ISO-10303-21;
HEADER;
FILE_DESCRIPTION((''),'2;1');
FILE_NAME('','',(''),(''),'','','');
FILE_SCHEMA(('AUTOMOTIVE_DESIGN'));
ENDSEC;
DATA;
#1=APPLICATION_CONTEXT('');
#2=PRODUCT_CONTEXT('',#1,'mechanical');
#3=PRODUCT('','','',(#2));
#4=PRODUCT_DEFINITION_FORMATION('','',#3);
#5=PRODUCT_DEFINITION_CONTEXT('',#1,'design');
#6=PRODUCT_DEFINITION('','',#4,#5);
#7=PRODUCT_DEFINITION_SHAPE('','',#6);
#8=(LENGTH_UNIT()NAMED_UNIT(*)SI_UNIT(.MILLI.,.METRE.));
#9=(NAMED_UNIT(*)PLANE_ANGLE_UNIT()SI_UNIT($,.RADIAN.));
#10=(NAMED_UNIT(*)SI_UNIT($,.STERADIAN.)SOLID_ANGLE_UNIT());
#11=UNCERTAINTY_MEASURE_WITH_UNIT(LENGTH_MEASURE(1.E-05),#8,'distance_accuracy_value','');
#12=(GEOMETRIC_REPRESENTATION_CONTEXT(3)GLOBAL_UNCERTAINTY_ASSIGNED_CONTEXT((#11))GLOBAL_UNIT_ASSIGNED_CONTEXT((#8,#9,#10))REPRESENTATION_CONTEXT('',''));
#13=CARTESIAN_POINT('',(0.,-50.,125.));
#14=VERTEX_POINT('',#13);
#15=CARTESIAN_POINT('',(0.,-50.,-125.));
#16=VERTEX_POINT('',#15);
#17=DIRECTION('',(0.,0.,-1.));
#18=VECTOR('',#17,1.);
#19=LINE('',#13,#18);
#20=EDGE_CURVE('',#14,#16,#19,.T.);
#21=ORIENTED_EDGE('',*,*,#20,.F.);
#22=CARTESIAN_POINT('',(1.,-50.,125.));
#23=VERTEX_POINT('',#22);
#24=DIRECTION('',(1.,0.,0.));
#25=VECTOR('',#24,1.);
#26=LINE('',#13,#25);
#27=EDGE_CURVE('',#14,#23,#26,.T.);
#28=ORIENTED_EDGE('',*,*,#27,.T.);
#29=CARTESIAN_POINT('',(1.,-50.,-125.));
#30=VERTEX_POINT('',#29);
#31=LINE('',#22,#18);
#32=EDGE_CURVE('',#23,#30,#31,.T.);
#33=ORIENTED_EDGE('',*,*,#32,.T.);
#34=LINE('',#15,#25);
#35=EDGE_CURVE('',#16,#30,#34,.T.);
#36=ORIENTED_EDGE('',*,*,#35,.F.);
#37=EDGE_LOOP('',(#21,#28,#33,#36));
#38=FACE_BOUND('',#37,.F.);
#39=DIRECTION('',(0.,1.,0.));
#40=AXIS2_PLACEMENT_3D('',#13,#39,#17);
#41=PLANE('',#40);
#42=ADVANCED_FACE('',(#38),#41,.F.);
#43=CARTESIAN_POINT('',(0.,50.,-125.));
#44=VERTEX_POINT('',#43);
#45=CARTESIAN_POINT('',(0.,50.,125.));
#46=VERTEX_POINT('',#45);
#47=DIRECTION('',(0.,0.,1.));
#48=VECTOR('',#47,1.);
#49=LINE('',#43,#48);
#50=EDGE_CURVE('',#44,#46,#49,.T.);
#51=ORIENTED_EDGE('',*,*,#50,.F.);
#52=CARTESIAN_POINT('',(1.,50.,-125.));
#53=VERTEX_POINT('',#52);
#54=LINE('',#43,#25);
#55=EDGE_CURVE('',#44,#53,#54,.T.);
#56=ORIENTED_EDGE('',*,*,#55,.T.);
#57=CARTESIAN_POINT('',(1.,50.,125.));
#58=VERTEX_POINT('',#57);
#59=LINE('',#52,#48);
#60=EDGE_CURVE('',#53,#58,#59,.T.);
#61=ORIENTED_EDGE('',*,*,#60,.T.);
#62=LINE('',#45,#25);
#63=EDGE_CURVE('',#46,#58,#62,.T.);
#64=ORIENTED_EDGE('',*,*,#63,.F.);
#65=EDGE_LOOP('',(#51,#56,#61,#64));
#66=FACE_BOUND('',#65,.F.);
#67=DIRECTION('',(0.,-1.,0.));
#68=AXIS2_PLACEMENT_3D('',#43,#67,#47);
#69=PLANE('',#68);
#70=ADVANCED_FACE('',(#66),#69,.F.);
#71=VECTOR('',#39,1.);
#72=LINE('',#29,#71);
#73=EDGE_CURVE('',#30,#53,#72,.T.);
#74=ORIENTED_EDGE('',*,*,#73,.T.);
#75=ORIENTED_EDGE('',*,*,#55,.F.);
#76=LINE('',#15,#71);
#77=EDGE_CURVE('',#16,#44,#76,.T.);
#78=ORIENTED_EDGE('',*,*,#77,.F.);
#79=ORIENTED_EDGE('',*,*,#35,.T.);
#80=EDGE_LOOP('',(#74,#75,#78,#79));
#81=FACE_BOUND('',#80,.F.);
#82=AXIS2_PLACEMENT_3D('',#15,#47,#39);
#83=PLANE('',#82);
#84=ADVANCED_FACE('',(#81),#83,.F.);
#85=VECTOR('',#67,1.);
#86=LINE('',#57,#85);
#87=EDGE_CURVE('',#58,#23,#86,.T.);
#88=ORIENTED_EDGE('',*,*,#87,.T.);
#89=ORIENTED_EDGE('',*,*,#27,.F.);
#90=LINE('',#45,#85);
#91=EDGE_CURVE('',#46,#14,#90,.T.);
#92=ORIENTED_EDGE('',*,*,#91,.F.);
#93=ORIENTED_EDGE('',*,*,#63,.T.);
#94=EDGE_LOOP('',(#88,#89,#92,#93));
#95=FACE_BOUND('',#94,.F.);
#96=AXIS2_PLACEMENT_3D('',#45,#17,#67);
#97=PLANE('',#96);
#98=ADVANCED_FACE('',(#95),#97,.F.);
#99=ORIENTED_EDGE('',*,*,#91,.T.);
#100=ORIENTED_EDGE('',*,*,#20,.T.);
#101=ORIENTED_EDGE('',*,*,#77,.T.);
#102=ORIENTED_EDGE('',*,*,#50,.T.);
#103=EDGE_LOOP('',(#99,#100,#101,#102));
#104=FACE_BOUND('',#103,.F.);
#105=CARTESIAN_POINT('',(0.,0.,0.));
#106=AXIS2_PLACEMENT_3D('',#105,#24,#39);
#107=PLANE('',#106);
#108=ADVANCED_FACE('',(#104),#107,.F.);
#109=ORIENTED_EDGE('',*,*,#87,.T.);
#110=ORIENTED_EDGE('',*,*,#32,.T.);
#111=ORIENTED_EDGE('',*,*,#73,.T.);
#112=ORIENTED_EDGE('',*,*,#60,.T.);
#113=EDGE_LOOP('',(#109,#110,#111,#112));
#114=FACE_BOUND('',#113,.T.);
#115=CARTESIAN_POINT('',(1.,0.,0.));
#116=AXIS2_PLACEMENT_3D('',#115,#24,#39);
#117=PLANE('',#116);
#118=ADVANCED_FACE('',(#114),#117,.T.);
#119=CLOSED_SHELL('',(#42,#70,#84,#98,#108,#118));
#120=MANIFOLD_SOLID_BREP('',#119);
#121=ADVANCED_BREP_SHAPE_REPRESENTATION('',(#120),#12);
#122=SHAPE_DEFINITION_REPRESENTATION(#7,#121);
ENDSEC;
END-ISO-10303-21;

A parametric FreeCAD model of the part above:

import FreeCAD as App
import Part
import Sketcher

V = App.Vector

doc = App.newDocument("Part")
body = doc.addObject("PartDesign::Body", "Body")

# Sketch on YZ plane
sketch1 = body.newObject("Sketcher::SketchObject", "Sketch")
sketch1.AttachmentSupport = (doc.getObject("YZ_Plane"), [""])
sketch1.MapMode = "FlatFace"
sketch1.addGeometry([
    Part.LineSegment(V(50, -125, 0), V(50, 125, 0)),
    Part.LineSegment(V(50, 125, 0), V(-50, 125, 0)),
    Part.LineSegment(V(-50, 125, 0), V(-50, -125, 0)),
    Part.LineSegment(V(-50, -125, 0), V(50, -125, 0)),
], False)
sketch1.addConstraint([
    Sketcher.Constraint("Coincident", 0, 2, 1, 1),
    Sketcher.Constraint("Coincident", 1, 2, 2, 1),
    Sketcher.Constraint("Coincident", 2, 2, 3, 1),
    Sketcher.Constraint("Coincident", 3, 2, 0, 1),
    Sketcher.Constraint("Vertical", 0),
    Sketcher.Constraint("Horizontal", 1),
    Sketcher.Constraint("Vertical", 2),
    Sketcher.Constraint("Horizontal", 3),
    Sketcher.Constraint("Symmetric", 0, 2, 2, 2, -1, 1),
    Sketcher.Constraint("DistanceX", 1, 2, 1, 1, 100.0),
    Sketcher.Constraint("DistanceY", 0, 1, 0, 2, 250.0),
])
pad1 = body.newObject("PartDesign::Pad", "Pad")
pad1.Profile = sketch1
pad1.Length = 1

doc.recompute()
